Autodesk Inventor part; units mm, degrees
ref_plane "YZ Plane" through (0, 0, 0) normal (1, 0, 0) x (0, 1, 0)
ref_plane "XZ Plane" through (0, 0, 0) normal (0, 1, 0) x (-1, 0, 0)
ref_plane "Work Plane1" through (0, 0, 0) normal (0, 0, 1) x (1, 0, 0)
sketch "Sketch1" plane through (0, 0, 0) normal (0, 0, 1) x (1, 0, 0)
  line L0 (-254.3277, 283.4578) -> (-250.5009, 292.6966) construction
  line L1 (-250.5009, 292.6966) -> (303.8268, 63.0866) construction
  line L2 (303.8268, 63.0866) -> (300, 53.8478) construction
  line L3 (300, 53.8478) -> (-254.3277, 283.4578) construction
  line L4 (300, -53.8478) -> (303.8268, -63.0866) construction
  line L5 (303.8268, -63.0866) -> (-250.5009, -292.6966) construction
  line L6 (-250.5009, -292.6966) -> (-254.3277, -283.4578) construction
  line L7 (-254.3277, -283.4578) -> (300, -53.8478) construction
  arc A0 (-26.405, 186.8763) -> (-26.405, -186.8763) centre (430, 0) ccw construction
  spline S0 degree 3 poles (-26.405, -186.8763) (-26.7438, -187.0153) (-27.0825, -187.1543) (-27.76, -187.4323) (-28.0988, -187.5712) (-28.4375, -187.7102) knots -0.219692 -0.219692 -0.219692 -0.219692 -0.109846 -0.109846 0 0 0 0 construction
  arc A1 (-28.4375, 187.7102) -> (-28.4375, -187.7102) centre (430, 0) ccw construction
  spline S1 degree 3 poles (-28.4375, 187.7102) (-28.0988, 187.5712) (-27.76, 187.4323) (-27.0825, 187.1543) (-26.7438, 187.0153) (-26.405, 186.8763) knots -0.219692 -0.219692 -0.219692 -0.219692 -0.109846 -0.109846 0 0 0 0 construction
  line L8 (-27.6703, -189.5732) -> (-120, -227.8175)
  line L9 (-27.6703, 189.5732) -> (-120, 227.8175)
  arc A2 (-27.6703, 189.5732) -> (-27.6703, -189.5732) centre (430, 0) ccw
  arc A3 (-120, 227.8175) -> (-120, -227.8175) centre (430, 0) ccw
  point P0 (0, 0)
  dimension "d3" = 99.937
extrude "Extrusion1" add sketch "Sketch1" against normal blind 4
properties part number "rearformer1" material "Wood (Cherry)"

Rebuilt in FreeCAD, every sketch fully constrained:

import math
import FreeCAD as App
import Part
import Sketcher
Q = App.Units.Quantity

doc = App.newDocument("Part")
params = doc.addObject("Spreadsheet::Sheet", "Params")
for row, (alias, value) in enumerate([
    ("pad1_length", "4 mm"),
], start=1):
    params.set(f"A{row}", alias)
    params.set(f"B{row}", "=" + value)
    params.setAlias(f"B{row}", alias)

body = doc.addObject("PartDesign::Body", "Body")

# Sketch on XY plane
sketch1 = body.newObject("Sketcher::SketchObject", "Sketch")
sketch1.AttachmentSupport = (doc.getObject("XY_Plane"), [""])
sketch1.MapMode = "FlatFace"
sketch1.addGeometry(Part.LineSegment(App.Vector(-120, -228, 0), App.Vector(-28, -190, 0)), False)
sketch1.addGeometry(Part.ArcOfCircle(Part.Circle(App.Vector(430, 0, 0), App.Vector(0, 0, 1), 495), math.radians(158), math.radians(202)), False)
sketch1.addGeometry(Part.LineSegment(App.Vector(-28, 190, 0), App.Vector(-120, 228, 0)), False)
sketch1.addGeometry(Part.ArcOfCircle(Part.Circle(App.Vector(430, 0, 0), App.Vector(0, 0, 1), 595), math.radians(157), math.radians(203)), False)
sketch1.addConstraint(Sketcher.Constraint("Coincident", 0, 2, 1, 2))
sketch1.addConstraint(Sketcher.Constraint("Coincident", 1, 1, 2, 1))
sketch1.addConstraint(Sketcher.Constraint("Coincident", 2, 2, 3, 1))
sketch1.addConstraint(Sketcher.Constraint("Coincident", 3, 2, 0, 1))
sketch1.addConstraint(Sketcher.Constraint("Coincident", 3, 3, 1, 3))
sketch1.addConstraint(Sketcher.Constraint("Symmetric", 0, 2, 1, 1, -1))
sketch1.addConstraint(Sketcher.Constraint("Vertical", 2, 2, 3, 2))
sketch1.addConstraint(Sketcher.Constraint("Distance", 0, 99.937))
sketch1.addConstraint(Sketcher.Constraint("DistanceX", -1, 1, 1, 3, 430.0))
sketch1.addConstraint(Sketcher.Constraint("DistanceX", 2, 2, -1, 1, 120.0))
sketch1.addConstraint(Sketcher.Constraint("Angle", 0, Q("22.5 deg")))
sketch1.addConstraint(Sketcher.Constraint("Radius", 1, 495.3787))
pad1 = body.newObject("PartDesign::Pad", "Pad")
pad1.Profile = sketch1
pad1.setExpression("Length", "Params.pad1_length")
pad1.Reversed = True

doc.recompute()
